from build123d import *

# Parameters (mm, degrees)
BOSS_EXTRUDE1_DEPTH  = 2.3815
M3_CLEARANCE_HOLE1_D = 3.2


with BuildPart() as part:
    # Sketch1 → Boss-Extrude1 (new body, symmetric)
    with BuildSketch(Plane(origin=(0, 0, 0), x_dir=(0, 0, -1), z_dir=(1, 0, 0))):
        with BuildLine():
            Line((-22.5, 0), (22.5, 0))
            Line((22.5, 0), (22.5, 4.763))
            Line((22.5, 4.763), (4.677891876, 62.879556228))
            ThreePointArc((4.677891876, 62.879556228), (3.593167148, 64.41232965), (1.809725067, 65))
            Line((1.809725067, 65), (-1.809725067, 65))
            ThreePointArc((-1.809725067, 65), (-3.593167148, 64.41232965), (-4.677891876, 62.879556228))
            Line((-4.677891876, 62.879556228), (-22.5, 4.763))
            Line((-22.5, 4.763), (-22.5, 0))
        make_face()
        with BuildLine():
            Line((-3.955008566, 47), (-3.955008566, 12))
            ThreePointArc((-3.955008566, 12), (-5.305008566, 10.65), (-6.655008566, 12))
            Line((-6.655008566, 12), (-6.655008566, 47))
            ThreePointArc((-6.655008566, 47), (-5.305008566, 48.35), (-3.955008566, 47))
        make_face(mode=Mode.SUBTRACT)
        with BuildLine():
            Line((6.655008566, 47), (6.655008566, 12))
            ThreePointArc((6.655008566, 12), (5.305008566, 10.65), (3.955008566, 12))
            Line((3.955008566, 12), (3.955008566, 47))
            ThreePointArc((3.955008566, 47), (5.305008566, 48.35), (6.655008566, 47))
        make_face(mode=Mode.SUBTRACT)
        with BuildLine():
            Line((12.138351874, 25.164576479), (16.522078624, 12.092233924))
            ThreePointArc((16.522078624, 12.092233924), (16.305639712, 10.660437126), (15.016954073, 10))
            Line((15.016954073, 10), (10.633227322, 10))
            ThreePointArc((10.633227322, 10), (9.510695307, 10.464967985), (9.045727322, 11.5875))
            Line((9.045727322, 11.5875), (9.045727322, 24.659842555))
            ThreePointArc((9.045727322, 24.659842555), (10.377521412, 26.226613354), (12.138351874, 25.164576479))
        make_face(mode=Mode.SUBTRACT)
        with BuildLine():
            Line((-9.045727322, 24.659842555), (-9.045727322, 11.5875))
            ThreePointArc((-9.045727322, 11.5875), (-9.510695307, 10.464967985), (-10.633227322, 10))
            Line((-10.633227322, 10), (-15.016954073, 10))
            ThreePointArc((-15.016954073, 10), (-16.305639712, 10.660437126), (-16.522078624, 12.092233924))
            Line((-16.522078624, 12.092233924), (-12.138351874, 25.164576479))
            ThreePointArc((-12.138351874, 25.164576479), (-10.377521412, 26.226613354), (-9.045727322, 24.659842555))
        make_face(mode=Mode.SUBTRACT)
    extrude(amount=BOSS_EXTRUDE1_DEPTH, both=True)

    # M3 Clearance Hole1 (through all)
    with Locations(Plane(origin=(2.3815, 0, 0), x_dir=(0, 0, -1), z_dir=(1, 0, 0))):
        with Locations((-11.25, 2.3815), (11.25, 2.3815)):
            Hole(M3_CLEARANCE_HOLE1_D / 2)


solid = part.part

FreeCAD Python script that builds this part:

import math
import FreeCAD as App
import Part
import Sketcher
from FreeCAD import Vector
Q = App.Units.Quantity

doc = App.newDocument("Part")
body = doc.addObject("PartDesign::Body", "Body")

# Sketch on YZ plane
sketch1 = body.newObject("Sketcher::SketchObject", "Sketch")
sketch1.AttachmentSupport = (doc.getObject("YZ_Plane"), [""])
sketch1.MapMode = "FlatFace"
sketch1.addGeometry([
    Part.LineSegment(Vector(0, 22.5, 0), Vector(0, -22.5, 0)),  # 0
    Part.LineSegment(Vector(0, -22.5, 0), Vector(4.8, -22.5, 0)),  # 1
    Part.LineSegment(Vector(4.8, -22.5, 0), Vector(62.9, -4.7, 0)),  # 2
    Part.ArcOfCircle(Part.Circle(Vector(62, -1.8, 0), Vector(0, 0, 1), 3), math.radians(-73), math.radians(0)),  # 3
    Part.LineSegment(Vector(65, -1.8, 0), Vector(65, 1.8, 0)),  # 4
    Part.ArcOfCircle(Part.Circle(Vector(62, 1.8, 0), Vector(0, 0, 1), 3), math.radians(0), math.radians(73)),  # 5
    Part.LineSegment(Vector(62.9, 4.7, 0), Vector(4.8, 22.5, 0)),  # 6
    Part.LineSegment(Vector(4.8, 22.5, 0), Vector(0, 22.5, 0)),  # 7
    Part.ArcOfCircle(Part.Circle(Vector(24.7, 10.6, 0), Vector(0, 0, 1), 1.6), math.radians(-90), math.radians(71)),  # 8
    Part.LineSegment(Vector(24.7, 9, 0), Vector(11.6, 9, 0)),  # 9
    Part.ArcOfCircle(Part.Circle(Vector(11.6, 10.6, 0), Vector(0, 0, 1), 1.6), math.radians(180), math.radians(270)),  # 10
    Part.LineSegment(Vector(10, 10.6, 0), Vector(10, 15, 0)),  # 11
    Part.ArcOfCircle(Part.Circle(Vector(11.6, 15, 0), Vector(0, 0, 1), 1.6), math.radians(71), math.radians(180)),  # 12
    Part.LineSegment(Vector(12.1, 16.5, 0), Vector(25.2, 12.1, 0)),  # 13
    Part.ArcOfCircle(Part.Circle(Vector(24.7, -10.6, 0), Vector(0, 0, 1), 1.6), math.radians(-71), math.radians(90)),  # 14
    Part.LineSegment(Vector(25.2, -12.1, 0), Vector(12.1, -16.5, 0)),  # 15
    Part.ArcOfCircle(Part.Circle(Vector(11.6, -15, 0), Vector(0, 0, 1), 1.6), math.radians(-180), math.radians(-71)),  # 16
    Part.LineSegment(Vector(10, -15, 0), Vector(10, -10.6, 0)),  # 17
    Part.ArcOfCircle(Part.Circle(Vector(11.6, -10.6, 0), Vector(0, 0, 1), 1.6), math.radians(90), math.radians(180)),  # 18
    Part.LineSegment(Vector(11.6, -9, 0), Vector(24.7, -9, 0)),  # 19
    Part.ArcOfCircle(Part.Circle(Vector(47, 5.3, 0), Vector(0, 0, 1), 1.4), math.radians(-90), math.radians(90)),  # 20
    Part.LineSegment(Vector(47, 4, 0), Vector(12, 4, 0)),  # 21
    Part.ArcOfCircle(Part.Circle(Vector(12, 5.3, 0), Vector(0, 0, 1), 1.4), math.radians(90), math.radians(270)),  # 22
    Part.LineSegment(Vector(12, 6.7, 0), Vector(47, 6.7, 0)),  # 23
    Part.ArcOfCircle(Part.Circle(Vector(47, -5.3, 0), Vector(0, 0, 1), 1.4), math.radians(-90), math.radians(90)),  # 24
    Part.LineSegment(Vector(47, -6.7, 0), Vector(12, -6.7, 0)),  # 25
    Part.ArcOfCircle(Part.Circle(Vector(12, -5.3, 0), Vector(0, 0, 1), 1.4), math.radians(90), math.radians(270)),  # 26
    Part.LineSegment(Vector(12, -4, 0), Vector(47, -4, 0)),  # 27
], False)
sketch1.addConstraint([
    Sketcher.Constraint("Coincident", 0, 2, 1, 1),
    Sketcher.Constraint("Coincident", 1, 2, 2, 1),
    Sketcher.Constraint("Tangent", 2, 2, 3, 1),
    Sketcher.Constraint("Tangent", 3, 2, 4, 1),
    Sketcher.Constraint("Tangent", 4, 2, 5, 1),
    Sketcher.Constraint("Tangent", 5, 2, 6, 1),
    Sketcher.Constraint("Coincident", 6, 2, 7, 1),
    Sketcher.Constraint("Coincident", 7, 2, 0, 1),
    Sketcher.Constraint("Tangent", 8, 1, 9, 1),
    Sketcher.Constraint("Tangent", 9, 2, 10, 2),
    Sketcher.Constraint("Tangent", 10, 1, 11, 1),
    Sketcher.Constraint("Tangent", 11, 2, 12, 2),
    Sketcher.Constraint("Tangent", 12, 1, 13, 1),
    Sketcher.Constraint("Tangent", 13, 2, 8, 2),
    Sketcher.Constraint("Tangent", 14, 1, 15, 1),
    Sketcher.Constraint("Tangent", 15, 2, 16, 2),
    Sketcher.Constraint("Tangent", 16, 1, 17, 1),
    Sketcher.Constraint("Tangent", 17, 2, 18, 2),
    Sketcher.Constraint("Tangent", 18, 1, 19, 1),
    Sketcher.Constraint("Tangent", 19, 2, 14, 2),
    Sketcher.Constraint("Tangent", 20, 1, 21, 1),
    Sketcher.Constraint("Tangent", 21, 2, 22, 2),
    Sketcher.Constraint("Tangent", 22, 1, 23, 1),
    Sketcher.Constraint("Tangent", 23, 2, 20, 2),
    Sketcher.Constraint("Tangent", 24, 1, 25, 1),
    Sketcher.Constraint("Tangent", 25, 2, 26, 2),
    Sketcher.Constraint("Tangent", 26, 1, 27, 1),
    Sketcher.Constraint("Tangent", 27, 2, 24, 2),
    Sketcher.Constraint("Vertical", 0),
    Sketcher.Constraint("Horizontal", 1),
    Sketcher.Constraint("Vertical", 4),
    Sketcher.Constraint("Horizontal", 7),
    Sketcher.Constraint("Horizontal", 9),
    Sketcher.Constraint("Vertical", 11),
    Sketcher.Constraint("Vertical", 17),
    Sketcher.Constraint("Horizontal", 19),
    Sketcher.Constraint("Horizontal", 21),
    Sketcher.Constraint("Horizontal", 23),
    Sketcher.Constraint("Horizontal", 25),
    Sketcher.Constraint("Horizontal", 27),
    Sketcher.Constraint("Equal", 3, 5),
    Sketcher.Constraint("Equal", 8, 10),
    Sketcher.Constraint("Equal", 10, 12),
    Sketcher.Constraint("Equal", 12, 14),
    Sketcher.Constraint("Equal", 14, 16),
    Sketcher.Constraint("Equal", 16, 18),
    Sketcher.Constraint("Equal", 22, 24),
    Sketcher.Constraint("Symmetric", 0, 2, 7, 2, -1, 1),
    Sketcher.Constraint("Symmetric", 8, 3, 14, 3, -1),
    Sketcher.Constraint("Symmetric", 12, 3, 16, 3, -1),
    Sketcher.Constraint("Symmetric", 20, 3, 24, 3, -1),
    Sketcher.Constraint("Symmetric", 2, 2, 5, 2, -1),
    Sketcher.Constraint("Vertical", 22, 3, 26, 3),
    Sketcher.Constraint("Radius", 3, Q("3 mm")),
    Sketcher.Constraint("DistanceX", 21, 2, 21, 1, Q("35 mm")),
    Sketcher.Constraint("DistanceY", 0, 2, 0, 1, Q("45 mm")),
    Sketcher.Constraint("Radius", 20, Q("1.35 mm")),
    Sketcher.Constraint("DistanceX", -1, 1, 3, 3, Q("62 mm")),
    Sketcher.Constraint("DistanceX", -1, 1, 20, 3, Q("47 mm")),
    Sketcher.Constraint("DistanceX", -1, 1, 10, 1, Q("10 mm")),
    Sketcher.Constraint("Radius", 8, Q("1.5875 mm")),
    Sketcher.Constraint("DistanceX", 1, 1, 1, 2, Q("4.763 mm")),
    Sketcher.Constraint("DistanceY", 4, 1, 4, 2, Q("3.61945 mm")),
    Sketcher.Constraint("DistanceY", 2, 2, 20, 3, Q("9.9829 mm")),
    Sketcher.Constraint("Distance", 13, Q("13.787792 mm")),
    Sketcher.Constraint("DistanceX", 9, 2, 9, 1, Q("13.072343 mm")),
    Sketcher.Constraint("DistanceY", -1, 1, 12, 1, Q("16.522079 mm")),
])
pad1 = body.newObject("PartDesign::Pad", "Pad")
pad1.Profile = sketch1
pad1.Length = 4.763
pad1.Midplane = True

# Sketch on YZ plane
sketch2 = body.newObject("Sketcher::SketchObject", "Sketch001")
sketch2.AttachmentSupport = (doc.getObject("YZ_Plane"), [""])
sketch2.MapMode = "FlatFace"
sketch2.AttachmentOffset = App.Placement(Vector(0, 0, 2.3815), App.Rotation())
sketch2.addGeometry([
    Part.Circle(Vector(2.4, 11.2, 0), Vector(0, 0, 1), 1.6),
    Part.Circle(Vector(2.4, -11.2, 0), Vector(0, 0, 1), 1.6),
], False)
sketch2.addConstraint([
    Sketcher.Constraint("Equal", 0, 1),
    Sketcher.Constraint("Symmetric", 0, 3, 1, 3, -1),
    Sketcher.Constraint("Diameter", 0, Q("3.2 mm")),
    Sketcher.Constraint("DistanceY", 1, 3, 0, 3, Q("22.5 mm")),
    Sketcher.Constraint("DistanceX", -1, 1, 0, 3, Q("2.3815 mm")),
])
doc.recompute()
hole = body.newObject("PartDesign::Hole", "Hole")
hole.Profile = sketch2
hole.ThreadType = "None"
hole.Diameter = 3.2
hole.DepthType = "ThroughAll"

doc.recompute()
